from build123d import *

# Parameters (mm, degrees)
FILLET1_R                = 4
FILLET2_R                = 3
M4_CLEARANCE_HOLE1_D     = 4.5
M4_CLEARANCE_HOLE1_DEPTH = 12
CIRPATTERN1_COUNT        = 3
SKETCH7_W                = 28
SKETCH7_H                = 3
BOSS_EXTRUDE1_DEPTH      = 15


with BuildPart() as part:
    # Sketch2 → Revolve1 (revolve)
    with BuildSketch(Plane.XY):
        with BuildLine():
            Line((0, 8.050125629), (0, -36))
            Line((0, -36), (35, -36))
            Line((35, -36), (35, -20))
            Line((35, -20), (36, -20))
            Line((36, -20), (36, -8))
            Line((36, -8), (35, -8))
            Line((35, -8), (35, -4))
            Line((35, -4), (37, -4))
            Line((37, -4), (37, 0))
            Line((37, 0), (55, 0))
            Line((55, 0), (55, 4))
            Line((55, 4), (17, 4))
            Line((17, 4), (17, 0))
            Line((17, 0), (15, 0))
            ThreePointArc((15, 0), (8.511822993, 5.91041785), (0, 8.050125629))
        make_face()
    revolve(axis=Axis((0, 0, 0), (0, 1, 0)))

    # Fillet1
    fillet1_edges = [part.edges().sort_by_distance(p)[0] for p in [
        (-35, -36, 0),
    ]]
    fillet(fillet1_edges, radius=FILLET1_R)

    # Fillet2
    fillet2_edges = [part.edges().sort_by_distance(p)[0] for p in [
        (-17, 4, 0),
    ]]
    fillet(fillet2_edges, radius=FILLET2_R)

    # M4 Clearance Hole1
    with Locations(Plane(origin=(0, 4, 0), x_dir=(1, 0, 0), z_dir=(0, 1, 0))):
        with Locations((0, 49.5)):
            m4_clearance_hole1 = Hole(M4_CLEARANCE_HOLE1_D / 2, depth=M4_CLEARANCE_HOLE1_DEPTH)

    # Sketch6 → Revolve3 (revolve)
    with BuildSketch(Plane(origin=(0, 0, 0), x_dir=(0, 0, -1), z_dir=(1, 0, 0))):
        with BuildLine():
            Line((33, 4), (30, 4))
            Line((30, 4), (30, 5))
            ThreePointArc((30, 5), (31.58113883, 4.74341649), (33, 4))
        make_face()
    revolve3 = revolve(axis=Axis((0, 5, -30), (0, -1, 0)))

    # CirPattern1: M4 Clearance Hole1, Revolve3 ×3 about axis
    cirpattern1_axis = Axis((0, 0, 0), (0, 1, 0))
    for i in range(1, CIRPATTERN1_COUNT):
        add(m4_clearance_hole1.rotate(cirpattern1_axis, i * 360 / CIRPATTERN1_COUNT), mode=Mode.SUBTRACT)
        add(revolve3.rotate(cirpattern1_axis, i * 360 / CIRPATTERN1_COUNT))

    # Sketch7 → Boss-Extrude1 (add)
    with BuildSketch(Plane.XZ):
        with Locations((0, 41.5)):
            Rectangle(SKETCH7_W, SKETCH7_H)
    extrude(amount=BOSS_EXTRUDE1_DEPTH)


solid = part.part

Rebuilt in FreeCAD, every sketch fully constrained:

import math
import FreeCAD as App
import Part
import Sketcher
Q = App.Units.Quantity


def edges_at(feature, points):
    """Names of the edges that pass closest to the given points."""
    edges = feature.Shape.Edges
    near = lambda p: min(range(len(edges)), key=lambda i: edges[i].distToShape(Part.Vertex(*p))[0])
    return sorted({f"Edge{near(p) + 1}" for p in points})

doc = App.newDocument("Part")
body = doc.addObject("PartDesign::Body", "Body")

# Sketch on XY plane
sketch1 = body.newObject("Sketcher::SketchObject", "Sketch")
sketch1.AttachmentSupport = (doc.getObject("XY_Plane"), [""])
sketch1.MapMode = "FlatFace"
sketch1.addGeometry([
    Part.LineSegment(App.Vector(0, 8.050126, 0), App.Vector(0, -36, 0)),  # 0
    Part.LineSegment(App.Vector(0, -36, 0), App.Vector(35, -36, 0)),  # 1
    Part.LineSegment(App.Vector(35, -36, 0), App.Vector(35, -20, 0)),  # 2
    Part.LineSegment(App.Vector(35, -20, 0), App.Vector(36, -20, 0)),  # 3
    Part.LineSegment(App.Vector(36, -20, 0), App.Vector(36, -8, 0)),  # 4
    Part.LineSegment(App.Vector(36, -8, 0), App.Vector(35, -8, 0)),  # 5
    Part.LineSegment(App.Vector(35, -8, 0), App.Vector(35, -4, 0)),  # 6
    Part.LineSegment(App.Vector(35, -4, 0), App.Vector(37, -4, 0)),  # 7
    Part.LineSegment(App.Vector(37, -4, 0), App.Vector(37, 0, 0)),  # 8
    Part.LineSegment(App.Vector(37, 0, 0), App.Vector(55, 0, 0)),  # 9
    Part.LineSegment(App.Vector(55, 0, 0), App.Vector(55, 4, 0)),  # 10
    Part.LineSegment(App.Vector(55, 4, 0), App.Vector(17, 4, 0)),  # 11
    Part.LineSegment(App.Vector(17, 4, 0), App.Vector(17, 0, 0)),  # 12
    Part.LineSegment(App.Vector(17, 0, 0), App.Vector(15, 0, 0)),  # 13
    Part.ArcOfCircle(Part.Circle(App.Vector(0, -9.949874, 0), App.Vector(0, 0, 1), 18), math.radians(33.55731), math.radians(90)),  # 14
], False)
sketch1.addConstraint([
    Sketcher.Constraint("Coincident", 0, 2, 1, 1),
    Sketcher.Constraint("Coincident", 1, 2, 2, 1),
    Sketcher.Constraint("Coincident", 2, 2, 3, 1),
    Sketcher.Constraint("Coincident", 3, 2, 4, 1),
    Sketcher.Constraint("Coincident", 4, 2, 5, 1),
    Sketcher.Constraint("Coincident", 5, 2, 6, 1),
    Sketcher.Constraint("Coincident", 6, 2, 7, 1),
    Sketcher.Constraint("Coincident", 7, 2, 8, 1),
    Sketcher.Constraint("Coincident", 8, 2, 9, 1),
    Sketcher.Constraint("Coincident", 9, 2, 10, 1),
    Sketcher.Constraint("Coincident", 10, 2, 11, 1),
    Sketcher.Constraint("Coincident", 11, 2, 12, 1),
    Sketcher.Constraint("Coincident", 12, 2, 13, 1),
    Sketcher.Constraint("Coincident", 13, 2, 14, 1),
    Sketcher.Constraint("Coincident", 14, 2, 0, 1),
    Sketcher.Constraint("Vertical", 0),
    Sketcher.Constraint("Horizontal", 1),
    Sketcher.Constraint("Vertical", 2),
    Sketcher.Constraint("Horizontal", 3),
    Sketcher.Constraint("Vertical", 4),
    Sketcher.Constraint("Horizontal", 5),
    Sketcher.Constraint("Vertical", 6),
    Sketcher.Constraint("Horizontal", 7),
    Sketcher.Constraint("Vertical", 8),
    Sketcher.Constraint("Horizontal", 9),
    Sketcher.Constraint("Vertical", 10),
    Sketcher.Constraint("Horizontal", 11),
    Sketcher.Constraint("Vertical", 12),
    Sketcher.Constraint("Horizontal", 13),
    Sketcher.Constraint("PointOnObject", 14, 3, -2),
    Sketcher.Constraint("PointOnObject", 0, 2, -2),
    Sketcher.Constraint("PointOnObject", 8, 2, -1),
    Sketcher.Constraint("PointOnObject", 12, 2, -1),
    Sketcher.Constraint("Vertical", 2, 2, 5, 2),
    Sketcher.Constraint("Equal", 7, 13),
    Sketcher.Constraint("Equal", 6, 8),
    Sketcher.Constraint("Equal", 8, 10),
    Sketcher.Constraint("Radius", 14, Q("18 mm")),
    Sketcher.Constraint("DistanceX", 1, 1, 1, 2, Q("35 mm")),
    Sketcher.Constraint("DistanceX", 3, 1, 3, 2, Q("1 mm")),
    Sketcher.Constraint("DistanceX", 7, 1, 7, 2, Q("2 mm")),
    Sketcher.Constraint("DistanceX", 9, 1, 9, 2, Q("18 mm")),
    Sketcher.Constraint("DistanceX", 11, 2, 11, 1, Q("38 mm")),
    Sketcher.Constraint("DistanceY", 2, 1, 2, 2, Q("16 mm")),
    Sketcher.Constraint("DistanceY", 4, 1, 4, 2, Q("12 mm")),
    Sketcher.Constraint("DistanceY", 6, 1, 6, 2, Q("4 mm")),
])
revolution = body.newObject("PartDesign::Revolution", "Revolution")
revolution.Profile = sketch1
revolution.ReferenceAxis = (sketch1, ["V_Axis"])
revolution.Angle = 360
doc.recompute()

fillet = body.newObject("PartDesign::Fillet", "Fillet")
fillet.Base = (revolution, edges_at(revolution, [(-35, -36, 0)]))
fillet.Radius = 4
doc.recompute()

fillet2 = body.newObject("PartDesign::Fillet", "Fillet001")
fillet2.Base = (fillet, edges_at(fillet, [(-17, 4, 0)]))
fillet2.Radius = 3

# Sketch on XZ plane
sketch2 = body.newObject("Sketcher::SketchObject", "Sketch001")
sketch2.AttachmentSupport = (doc.getObject("XZ_Plane"), [""])
sketch2.MapMode = "FlatFace"
sketch2.AttachmentOffset = App.Placement(App.Vector(0, 0, -4), App.Rotation())
sketch2.addGeometry(Part.Circle(App.Vector(0, -49.5, 0), App.Vector(0, 0, 1), 2.25), False)
sketch2.addConstraint([
    Sketcher.Constraint("PointOnObject", 0, 3, -2),
    Sketcher.Constraint("Diameter", 0, Q("4.5 mm")),
    Sketcher.Constraint("DistanceY", 0, 3, -1, 1, Q("49.5 mm")),
])
doc.recompute()
hole = body.newObject("PartDesign::Hole", "Hole")
hole.Profile = sketch2
hole.ThreadType = "None"
hole.Diameter = 4.5
hole.DepthType = "Dimension"
hole.Depth = 12
hole.DrillPoint = "Flat"
hole.Reversed = True

# Sketch on YZ plane
sketch3 = body.newObject("Sketcher::SketchObject", "Sketch002")
sketch3.AttachmentSupport = (doc.getObject("YZ_Plane"), [""])
sketch3.MapMode = "FlatFace"
sketch3.addGeometry([
    Part.LineSegment(App.Vector(4, -30, 0), App.Vector(4, -33, 0)),
    Part.ArcOfCircle(Part.Circle(App.Vector(0, -30, 0), App.Vector(0, 0, 1), 5), math.radians(-36.869898), math.radians(0)),
    Part.LineSegment(App.Vector(5, -30, 0), App.Vector(4, -30, 0)),
], False)
sketch3.addGeometry(Part.LineSegment(App.Vector(5, -30, 0), App.Vector(0, -30, 0)), True)  # axis
sketch3.addConstraint([
    Sketcher.Constraint("Coincident", 0, 2, 1, 1),
    Sketcher.Constraint("Coincident", 1, 2, 2, 1),
    Sketcher.Constraint("Coincident", 2, 2, 0, 1),
    Sketcher.Constraint("Vertical", 0),
    Sketcher.Constraint("Horizontal", 2),
    Sketcher.Constraint("Horizontal", 3),
    Sketcher.Constraint("Coincident", 3, 1, 1, 2),
    Sketcher.Constraint("Coincident", 3, 2, 1, 3),
    Sketcher.Constraint("PointOnObject", 1, 3, -2),
    Sketcher.Constraint("Radius", 1, Q("5 mm")),
    Sketcher.Constraint("DistanceX", 2, 2, 2, 1, Q("1 mm")),
    Sketcher.Constraint("DistanceY", 1, 3, -1, 1, Q("30 mm")),
])
revolution2 = body.newObject("PartDesign::Revolution", "Revolution001")
revolution2.Profile = sketch3
revolution2.ReferenceAxis = (sketch3, ["Axis0"])
revolution2.Angle = 360
doc.recompute()

polarpattern = body.newObject("PartDesign::PolarPattern", "PolarPattern")
polarpattern.Originals = [hole, revolution2]
polarpattern.Axis = (doc.getObject("Y_Axis"), [""])
polarpattern.Angle = 360
polarpattern.Occurrences = 3
body.Tip = polarpattern

# Sketch on XZ plane
sketch4 = body.newObject("Sketcher::SketchObject", "Sketch003")
sketch4.AttachmentSupport = (doc.getObject("XZ_Plane"), [""])
sketch4.MapMode = "FlatFace"
sketch4.addGeometry([
    Part.LineSegment(App.Vector(-14, 43, 0), App.Vector(-14, 40, 0)),
    Part.LineSegment(App.Vector(-14, 40, 0), App.Vector(14, 40, 0)),
    Part.LineSegment(App.Vector(14, 40, 0), App.Vector(14, 43, 0)),
    Part.LineSegment(App.Vector(14, 43, 0), App.Vector(-14, 43, 0)),
], False)
sketch4.addConstraint([
    Sketcher.Constraint("Coincident", 0, 2, 1, 1),
    Sketcher.Constraint("Coincident", 1, 2, 2, 1),
    Sketcher.Constraint("Coincident", 2, 2, 3, 1),
    Sketcher.Constraint("Coincident", 3, 2, 0, 1),
    Sketcher.Constraint("Vertical", 0),
    Sketcher.Constraint("Horizontal", 1),
    Sketcher.Constraint("Vertical", 2),
    Sketcher.Constraint("Horizontal", 3),
    Sketcher.Constraint("DistanceX", 1, 1, 1, 2, Q("28 mm")),
    Sketcher.Constraint("DistanceY", 0, 2, 0, 1, Q("3 mm")),
    Sketcher.Constraint("DistanceX", 0, 2, -1, 1, Q("14 mm")),
    Sketcher.Constraint("DistanceY", -1, 1, 0, 2, Q("40 mm")),
])
pad1 = body.newObject("PartDesign::Pad", "Pad")
pad1.Profile = sketch4
pad1.Length = 15

doc.recompute()
